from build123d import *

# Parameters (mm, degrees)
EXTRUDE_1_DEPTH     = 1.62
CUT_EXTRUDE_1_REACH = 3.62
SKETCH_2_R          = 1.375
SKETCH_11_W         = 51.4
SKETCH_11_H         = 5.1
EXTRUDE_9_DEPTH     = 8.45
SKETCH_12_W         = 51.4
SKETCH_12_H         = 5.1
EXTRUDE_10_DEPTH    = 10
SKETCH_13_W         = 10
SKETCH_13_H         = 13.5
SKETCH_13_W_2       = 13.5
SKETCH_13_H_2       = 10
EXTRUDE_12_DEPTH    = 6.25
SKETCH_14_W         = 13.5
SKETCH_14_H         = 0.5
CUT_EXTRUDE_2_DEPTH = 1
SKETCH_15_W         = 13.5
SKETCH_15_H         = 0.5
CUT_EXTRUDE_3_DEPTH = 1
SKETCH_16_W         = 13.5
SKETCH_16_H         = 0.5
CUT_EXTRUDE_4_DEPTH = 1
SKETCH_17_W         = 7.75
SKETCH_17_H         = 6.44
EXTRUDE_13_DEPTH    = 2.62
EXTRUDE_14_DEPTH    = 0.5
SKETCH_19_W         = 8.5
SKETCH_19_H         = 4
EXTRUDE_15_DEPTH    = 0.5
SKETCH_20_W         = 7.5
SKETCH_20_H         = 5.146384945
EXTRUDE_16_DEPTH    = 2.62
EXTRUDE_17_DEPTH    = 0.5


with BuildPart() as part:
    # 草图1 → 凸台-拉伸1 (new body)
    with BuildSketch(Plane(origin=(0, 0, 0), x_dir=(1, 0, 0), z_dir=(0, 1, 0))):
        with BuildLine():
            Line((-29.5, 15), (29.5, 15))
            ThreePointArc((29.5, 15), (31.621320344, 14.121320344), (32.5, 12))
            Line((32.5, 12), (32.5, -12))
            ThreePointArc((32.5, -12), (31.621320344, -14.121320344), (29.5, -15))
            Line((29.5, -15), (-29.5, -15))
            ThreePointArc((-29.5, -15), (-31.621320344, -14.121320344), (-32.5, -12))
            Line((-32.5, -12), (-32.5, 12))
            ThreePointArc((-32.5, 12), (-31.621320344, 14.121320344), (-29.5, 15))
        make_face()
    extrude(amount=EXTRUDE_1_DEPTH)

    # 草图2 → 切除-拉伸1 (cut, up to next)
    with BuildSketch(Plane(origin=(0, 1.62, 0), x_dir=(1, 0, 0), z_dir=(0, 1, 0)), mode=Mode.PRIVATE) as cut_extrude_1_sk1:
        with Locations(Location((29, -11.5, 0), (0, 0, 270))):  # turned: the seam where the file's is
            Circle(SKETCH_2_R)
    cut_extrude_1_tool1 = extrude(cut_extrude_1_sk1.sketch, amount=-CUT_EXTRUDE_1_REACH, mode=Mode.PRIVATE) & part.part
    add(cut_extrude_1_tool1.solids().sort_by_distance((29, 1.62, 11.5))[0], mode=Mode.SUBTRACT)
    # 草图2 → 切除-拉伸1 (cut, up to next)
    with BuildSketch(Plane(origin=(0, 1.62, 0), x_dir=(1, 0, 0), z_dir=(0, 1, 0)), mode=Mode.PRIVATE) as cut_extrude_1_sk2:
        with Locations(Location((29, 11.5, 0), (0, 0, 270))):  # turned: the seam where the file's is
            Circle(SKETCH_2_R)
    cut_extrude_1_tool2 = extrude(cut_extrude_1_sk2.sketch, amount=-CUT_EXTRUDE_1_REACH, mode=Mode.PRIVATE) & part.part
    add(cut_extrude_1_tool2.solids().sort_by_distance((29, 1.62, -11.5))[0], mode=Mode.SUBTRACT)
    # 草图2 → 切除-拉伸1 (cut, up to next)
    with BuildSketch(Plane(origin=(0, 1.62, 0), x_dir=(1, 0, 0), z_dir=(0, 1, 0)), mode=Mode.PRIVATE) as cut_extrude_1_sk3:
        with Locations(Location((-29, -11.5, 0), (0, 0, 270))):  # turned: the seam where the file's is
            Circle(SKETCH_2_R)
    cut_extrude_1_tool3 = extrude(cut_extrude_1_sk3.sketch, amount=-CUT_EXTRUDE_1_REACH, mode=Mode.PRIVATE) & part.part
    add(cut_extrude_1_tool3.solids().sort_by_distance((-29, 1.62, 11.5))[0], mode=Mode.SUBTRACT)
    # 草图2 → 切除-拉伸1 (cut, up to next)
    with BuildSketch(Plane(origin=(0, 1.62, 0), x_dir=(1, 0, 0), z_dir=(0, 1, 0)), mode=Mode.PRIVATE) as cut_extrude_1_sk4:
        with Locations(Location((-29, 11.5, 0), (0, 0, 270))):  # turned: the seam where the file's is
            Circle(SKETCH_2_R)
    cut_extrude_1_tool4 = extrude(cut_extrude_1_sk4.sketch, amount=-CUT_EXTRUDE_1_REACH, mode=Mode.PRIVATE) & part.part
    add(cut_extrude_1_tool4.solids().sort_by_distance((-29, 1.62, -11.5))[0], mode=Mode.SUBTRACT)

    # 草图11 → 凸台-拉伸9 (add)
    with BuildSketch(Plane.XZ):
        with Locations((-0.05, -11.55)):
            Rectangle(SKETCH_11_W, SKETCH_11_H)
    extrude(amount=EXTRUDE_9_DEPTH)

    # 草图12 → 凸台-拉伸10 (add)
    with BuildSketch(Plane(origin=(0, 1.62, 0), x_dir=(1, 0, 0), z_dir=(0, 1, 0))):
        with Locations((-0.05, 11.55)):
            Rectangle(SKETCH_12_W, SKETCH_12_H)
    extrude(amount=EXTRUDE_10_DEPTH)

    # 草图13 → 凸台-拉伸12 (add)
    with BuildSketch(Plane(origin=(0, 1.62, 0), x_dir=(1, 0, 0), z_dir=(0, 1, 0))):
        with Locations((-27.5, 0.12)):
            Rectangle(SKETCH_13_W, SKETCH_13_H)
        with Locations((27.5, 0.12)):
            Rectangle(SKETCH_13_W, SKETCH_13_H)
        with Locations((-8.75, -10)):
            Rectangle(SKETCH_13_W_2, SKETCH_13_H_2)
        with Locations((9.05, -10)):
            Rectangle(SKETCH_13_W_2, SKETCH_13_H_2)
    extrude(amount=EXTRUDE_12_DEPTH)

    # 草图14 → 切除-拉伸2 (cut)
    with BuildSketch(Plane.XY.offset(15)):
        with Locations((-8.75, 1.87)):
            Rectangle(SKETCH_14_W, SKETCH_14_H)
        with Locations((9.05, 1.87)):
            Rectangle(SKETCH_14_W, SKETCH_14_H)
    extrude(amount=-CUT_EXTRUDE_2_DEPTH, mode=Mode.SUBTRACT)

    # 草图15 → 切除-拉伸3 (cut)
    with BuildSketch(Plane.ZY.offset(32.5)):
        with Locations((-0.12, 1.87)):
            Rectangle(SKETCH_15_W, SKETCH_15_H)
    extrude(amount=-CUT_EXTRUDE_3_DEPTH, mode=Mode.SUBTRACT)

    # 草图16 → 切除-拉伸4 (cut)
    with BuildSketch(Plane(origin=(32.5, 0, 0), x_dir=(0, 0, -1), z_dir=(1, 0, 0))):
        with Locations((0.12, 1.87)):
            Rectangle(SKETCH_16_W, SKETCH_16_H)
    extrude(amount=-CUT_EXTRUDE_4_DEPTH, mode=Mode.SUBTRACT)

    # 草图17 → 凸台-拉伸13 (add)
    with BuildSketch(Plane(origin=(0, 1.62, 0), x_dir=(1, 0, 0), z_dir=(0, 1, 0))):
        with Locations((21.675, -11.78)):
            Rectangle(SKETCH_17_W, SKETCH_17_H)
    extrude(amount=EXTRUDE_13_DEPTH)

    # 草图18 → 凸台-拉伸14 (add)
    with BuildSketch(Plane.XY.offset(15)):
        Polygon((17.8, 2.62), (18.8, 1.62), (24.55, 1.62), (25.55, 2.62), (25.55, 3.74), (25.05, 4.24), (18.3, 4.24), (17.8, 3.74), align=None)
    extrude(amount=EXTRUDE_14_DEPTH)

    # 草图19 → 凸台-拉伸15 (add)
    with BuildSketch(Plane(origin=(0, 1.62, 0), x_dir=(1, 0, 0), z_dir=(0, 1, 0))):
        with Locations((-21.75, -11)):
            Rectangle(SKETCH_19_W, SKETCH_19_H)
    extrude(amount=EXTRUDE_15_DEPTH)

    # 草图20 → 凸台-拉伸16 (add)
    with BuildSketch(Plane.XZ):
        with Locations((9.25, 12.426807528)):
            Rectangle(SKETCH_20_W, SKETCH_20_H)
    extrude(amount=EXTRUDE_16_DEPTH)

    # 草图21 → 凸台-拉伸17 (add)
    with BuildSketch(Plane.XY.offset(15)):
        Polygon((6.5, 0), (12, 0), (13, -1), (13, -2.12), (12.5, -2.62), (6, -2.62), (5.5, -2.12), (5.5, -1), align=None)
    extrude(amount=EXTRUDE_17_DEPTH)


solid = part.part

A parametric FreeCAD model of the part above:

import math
import FreeCAD as App
import Part
import Sketcher

V = App.Vector
Q = App.Units.Quantity


def add_polygon(sketch, points):
    """Adds a closed chain of lines whose ends are joined by coincident constraints."""
    first, n = sketch.GeometryCount, len(points)
    for a, b in zip(points, points[1:] + points[:1]):
        sketch.addGeometry(Part.LineSegment(App.Vector(*a, 0), App.Vector(*b, 0)), False)
    for i in range(n):
        sketch.addConstraint(Sketcher.Constraint("Coincident", first + i, 2, first + (i + 1) % n, 1))

doc = App.newDocument("Part")
body = doc.addObject("PartDesign::Body", "Body")

# Sketch on XZ plane
sketch1 = body.newObject("Sketcher::SketchObject", "Sketch")
sketch1.AttachmentSupport = (doc.getObject("XZ_Plane"), [""])
sketch1.MapMode = "FlatFace"
sketch1.addGeometry([
    Part.LineSegment(V(29.5, -15, 0), V(-29.5, -15, 0)),  # 0
    Part.ArcOfCircle(Part.Circle(V(-29.5, -12, 0), V(0, 0, 1), 3), math.radians(180), math.radians(270)),  # 1
    Part.LineSegment(V(-32.5, -12, 0), V(-32.5, 12, 0)),  # 2
    Part.ArcOfCircle(Part.Circle(V(-29.5, 12, 0), V(0, 0, 1), 3), math.radians(90), math.radians(180)),  # 3
    Part.LineSegment(V(-29.5, 15, 0), V(29.5, 15, 0)),  # 4
    Part.ArcOfCircle(Part.Circle(V(29.5, 12, 0), V(0, 0, 1), 3), math.radians(0), math.radians(90)),  # 5
    Part.LineSegment(V(32.5, 12, 0), V(32.5, -12, 0)),  # 6
    Part.ArcOfCircle(Part.Circle(V(29.5, -12, 0), V(0, 0, 1), 3), math.radians(-90), math.radians(0)),  # 7
], False)
sketch1.addConstraint([
    Sketcher.Constraint("Tangent", 0, 2, 1, 2),
    Sketcher.Constraint("Tangent", 1, 1, 2, 1),
    Sketcher.Constraint("Tangent", 2, 2, 3, 2),
    Sketcher.Constraint("Tangent", 3, 1, 4, 1),
    Sketcher.Constraint("Tangent", 4, 2, 5, 2),
    Sketcher.Constraint("Tangent", 5, 1, 6, 1),
    Sketcher.Constraint("Tangent", 6, 2, 7, 2),
    Sketcher.Constraint("Tangent", 7, 1, 0, 1),
    Sketcher.Constraint("Horizontal", 0),
    Sketcher.Constraint("Vertical", 2),
    Sketcher.Constraint("Horizontal", 4),
    Sketcher.Constraint("Vertical", 6),
    Sketcher.Constraint("Equal", 1, 3),
    Sketcher.Constraint("Equal", 3, 5),
    Sketcher.Constraint("Equal", 5, 7),
    Sketcher.Constraint("Symmetric", 1, 3, 5, 3, -1, 1),
    Sketcher.Constraint("Radius", 1, Q("3 mm")),
    Sketcher.Constraint("DistanceX", 0, 2, 0, 1, Q("59 mm")),
    Sketcher.Constraint("DistanceY", 2, 1, 2, 2, Q("24 mm")),
])
pad1 = body.newObject("PartDesign::Pad", "Pad")
pad1.Profile = sketch1
pad1.Length = 1.62
pad1.Reversed = True

# Sketch on XZ plane
sketch2 = body.newObject("Sketcher::SketchObject", "Sketch001")
sketch2.AttachmentSupport = (doc.getObject("XZ_Plane"), [""])
sketch2.MapMode = "FlatFace"
sketch2.AttachmentOffset = App.Placement(V(0, 0, -1.62), App.Rotation())
sketch2.addGeometry(Part.Circle(V(29, 11.5, 0), V(0, 0, 1), 1.4), False)
sketch2.addConstraint([
    Sketcher.Constraint("Diameter", 0, Q("2.75 mm")),
    Sketcher.Constraint("DistanceX", -1, 1, 0, 3, Q("29 mm")),
    Sketcher.Constraint("DistanceY", -1, 1, 0, 3, Q("11.5 mm")),
])
pocket1 = body.newObject("PartDesign::Pocket", "Pocket")
pocket1.Profile = sketch2
pocket1.Type = "UpToFirst"
pocket1.Reversed = True

# Sketch on XZ plane
sketch3 = body.newObject("Sketcher::SketchObject", "Sketch002")
sketch3.AttachmentSupport = (doc.getObject("XZ_Plane"), [""])
sketch3.MapMode = "FlatFace"
sketch3.AttachmentOffset = App.Placement(V(0, 0, -1.62), App.Rotation())
sketch3.addGeometry(Part.Circle(V(29, -11.5, 0), V(0, 0, 1), 1.4), False)
sketch3.addConstraint([
    Sketcher.Constraint("Diameter", 0, Q("2.75 mm")),
    Sketcher.Constraint("DistanceX", -1, 1, 0, 3, Q("29 mm")),
    Sketcher.Constraint("DistanceY", 0, 3, -1, 1, Q("11.5 mm")),
])
pocket2 = body.newObject("PartDesign::Pocket", "Pocket001")
pocket2.Profile = sketch3
pocket2.Type = "UpToFirst"
pocket2.Reversed = True

# Sketch on XZ plane
sketch4 = body.newObject("Sketcher::SketchObject", "Sketch003")
sketch4.AttachmentSupport = (doc.getObject("XZ_Plane"), [""])
sketch4.MapMode = "FlatFace"
sketch4.AttachmentOffset = App.Placement(V(0, 0, -1.62), App.Rotation())
sketch4.addGeometry(Part.Circle(V(-29, 11.5, 0), V(0, 0, 1), 1.4), False)
sketch4.addConstraint([
    Sketcher.Constraint("Diameter", 0, Q("2.75 mm")),
    Sketcher.Constraint("DistanceX", 0, 3, -1, 1, Q("29 mm")),
    Sketcher.Constraint("DistanceY", -1, 1, 0, 3, Q("11.5 mm")),
])
pocket3 = body.newObject("PartDesign::Pocket", "Pocket002")
pocket3.Profile = sketch4
pocket3.Type = "UpToFirst"
pocket3.Reversed = True

# Sketch on XZ plane
sketch5 = body.newObject("Sketcher::SketchObject", "Sketch004")
sketch5.AttachmentSupport = (doc.getObject("XZ_Plane"), [""])
sketch5.MapMode = "FlatFace"
sketch5.AttachmentOffset = App.Placement(V(0, 0, -1.62), App.Rotation())
sketch5.addGeometry(Part.Circle(V(-29, -11.5, 0), V(0, 0, 1), 1.4), False)
sketch5.addConstraint([
    Sketcher.Constraint("Diameter", 0, Q("2.75 mm")),
    Sketcher.Constraint("DistanceX", 0, 3, -1, 1, Q("29 mm")),
    Sketcher.Constraint("DistanceY", 0, 3, -1, 1, Q("11.5 mm")),
])
pocket4 = body.newObject("PartDesign::Pocket", "Pocket003")
pocket4.Profile = sketch5
pocket4.Type = "UpToFirst"
pocket4.Reversed = True

# Sketch on XZ plane
sketch6 = body.newObject("Sketcher::SketchObject", "Sketch005")
sketch6.AttachmentSupport = (doc.getObject("XZ_Plane"), [""])
sketch6.MapMode = "FlatFace"
add_polygon(sketch6, [(-26, -9), (-26, -14), (26, -14), (26, -9)])  # lines 0-3
sketch6.addConstraint([
    Sketcher.Constraint("Vertical", 0),
    Sketcher.Constraint("Horizontal", 1),
    Sketcher.Constraint("Vertical", 2),
    Sketcher.Constraint("Horizontal", 3),
    Sketcher.Constraint("DistanceX", 1, 1, 1, 2, Q("51.4 mm")),
    Sketcher.Constraint("DistanceY", 0, 2, 0, 1, Q("5.1 mm")),
    Sketcher.Constraint("DistanceY", 2, 2, -1, 1, Q("9 mm")),
    Sketcher.Constraint("DistanceX", 0, 2, -1, 1, Q("25.75 mm")),
])
pad2 = body.newObject("PartDesign::Pad", "Pad001")
pad2.Profile = sketch6
pad2.Length = 8.45

# Sketch on XZ plane
sketch7 = body.newObject("Sketcher::SketchObject", "Sketch006")
sketch7.AttachmentSupport = (doc.getObject("XZ_Plane"), [""])
sketch7.MapMode = "FlatFace"
sketch7.AttachmentOffset = App.Placement(V(0, 0, -1.62), App.Rotation())
add_polygon(sketch7, [(-26, -14), (-26, -9), (26, -9), (26, -14)])  # lines 0-3
sketch7.addConstraint([
    Sketcher.Constraint("Vertical", 0),
    Sketcher.Constraint("Horizontal", 1),
    Sketcher.Constraint("Vertical", 2),
    Sketcher.Constraint("Horizontal", 3),
    Sketcher.Constraint("DistanceX", 1, 1, 1, 2, Q("51.4 mm")),
    Sketcher.Constraint("DistanceY", 0, 1, 0, 2, Q("5.1 mm")),
    Sketcher.Constraint("DistanceY", 0, 2, -1, 1, Q("9 mm")),
    Sketcher.Constraint("DistanceX", 0, 2, -1, 1, Q("25.75 mm")),
])
pad3 = body.newObject("PartDesign::Pad", "Pad002")
pad3.Profile = sketch7
pad3.Length = 10
pad3.Reversed = True

# Sketch on XZ plane
sketch8 = body.newObject("Sketcher::SketchObject", "Sketch007")
sketch8.AttachmentSupport = (doc.getObject("XZ_Plane"), [""])
sketch8.MapMode = "FlatFace"
sketch8.AttachmentOffset = App.Placement(V(0, 0, -1.62), App.Rotation())
add_polygon(sketch8, [(-32, -7), (-32, 7), (-22, 7), (-22, -7)])  # lines 0-3
add_polygon(sketch8, [(22, -7), (22, 7), (32, 7), (32, -7)])  # lines 4-7
add_polygon(sketch8, [(-16, 5), (-16, 15), (-2, 15), (-2, 5)])  # lines 8-11
add_polygon(sketch8, [(2, 5), (2, 15), (16, 15), (16, 5)])  # lines 12-15
sketch8.addConstraint([
    Sketcher.Constraint("Vertical", 0),
    Sketcher.Constraint("Horizontal", 1),
    Sketcher.Constraint("Vertical", 2),
    Sketcher.Constraint("Horizontal", 3),
    Sketcher.Constraint("Vertical", 4),
    Sketcher.Constraint("Horizontal", 5),
    Sketcher.Constraint("Vertical", 6),
    Sketcher.Constraint("Horizontal", 7),
    Sketcher.Constraint("Vertical", 8),
    Sketcher.Constraint("Horizontal", 9),
    Sketcher.Constraint("Vertical", 10),
    Sketcher.Constraint("Horizontal", 11),
    Sketcher.Constraint("Vertical", 12),
    Sketcher.Constraint("Horizontal", 13),
    Sketcher.Constraint("Vertical", 14),
    Sketcher.Constraint("Horizontal", 15),
    Sketcher.Constraint("Symmetric", 1, 2, 4, 2, -2),
    Sketcher.Constraint("Symmetric", 3, 2, 6, 2, -2),
    Sketcher.Constraint("Horizontal", 9, 2, 12, 2),
    Sketcher.Constraint("Horizontal", 11, 2, 14, 2),
    Sketcher.Constraint("Equal", 11, 13),
    Sketcher.Constraint("Equal", 15, 0),
    Sketcher.Constraint("Equal", 7, 8),
    Sketcher.Constraint("DistanceX", 1, 1, 1, 2, Q("10 mm")),
    Sketcher.Constraint("DistanceX", 9, 1, 9, 2, Q("13.5 mm")),
    Sketcher.Constraint("DistanceY", -1, 1, 8, 2, Q("15 mm")),
    Sketcher.Constraint("DistanceX", 9, 2, -1, 1, Q("2 mm")),
    Sketcher.Constraint("DistanceX", 1, 2, 4, 2, Q("45 mm")),
    Sketcher.Constraint("DistanceX", -1, 1, 12, 2, Q("2.3 mm")),
    Sketcher.Constraint("DistanceY", -1, 1, 0, 2, Q("6.63 mm")),
])
pad4 = body.newObject("PartDesign::Pad", "Pad003")
pad4.Profile = sketch8
pad4.Length = 6.25
pad4.Reversed = True

# Sketch on XY plane
sketch9 = body.newObject("Sketcher::SketchObject", "Sketch008")
sketch9.AttachmentSupport = (doc.getObject("XY_Plane"), [""])
sketch9.MapMode = "FlatFace"
sketch9.AttachmentOffset = App.Placement(V(0, 0, 15), App.Rotation())
add_polygon(sketch9, [(-15.5, 2.1), (-15.5, 1.6), (-2, 1.6), (-2, 2.1)])  # lines 0-3
add_polygon(sketch9, [(2.3, 2.1), (2.3, 1.6), (15.8, 1.6), (15.8, 2.1)])  # lines 4-7
sketch9.addConstraint([
    Sketcher.Constraint("Vertical", 0),
    Sketcher.Constraint("Horizontal", 1),
    Sketcher.Constraint("Vertical", 2),
    Sketcher.Constraint("Horizontal", 3),
    Sketcher.Constraint("Vertical", 4),
    Sketcher.Constraint("Horizontal", 5),
    Sketcher.Constraint("Vertical", 6),
    Sketcher.Constraint("Horizontal", 7),
    Sketcher.Constraint("Horizontal", 1, 2, 4, 2),
    Sketcher.Constraint("Horizontal", 3, 2, 6, 2),
    Sketcher.Constraint("Equal", 3, 5),
    Sketcher.Constraint("DistanceX", 1, 1, 1, 2, Q("13.5 mm")),
    Sketcher.Constraint("DistanceY", 0, 2, 0, 1, Q("0.5 mm")),
    Sketcher.Constraint("DistanceX", 1, 2, -1, 1, Q("2 mm")),
    Sketcher.Constraint("DistanceX", -1, 1, 4, 2, Q("2.3 mm")),
    Sketcher.Constraint("DistanceY", -1, 1, 0, 2, Q("1.62 mm")),
])
pocket5 = body.newObject("PartDesign::Pocket", "Pocket004")
pocket5.Profile = sketch9
pocket5.Length = 1

# Sketch on YZ plane
sketch10 = body.newObject("Sketcher::SketchObject", "Sketch009")
sketch10.AttachmentSupport = (doc.getObject("YZ_Plane"), [""])
sketch10.MapMode = "FlatFace"
sketch10.AttachmentOffset = App.Placement(V(0, 0, -32.5), App.Rotation())
add_polygon(sketch10, [(2.1, -6.9), (1.6, -6.9), (1.6, 6.6), (2.1, 6.6)])  # lines 0-3
sketch10.addConstraint([
    Sketcher.Constraint("Horizontal", 0),
    Sketcher.Constraint("Vertical", 1),
    Sketcher.Constraint("Horizontal", 2),
    Sketcher.Constraint("Vertical", 3),
    Sketcher.Constraint("DistanceX", 0, 2, 0, 1, Q("0.5 mm")),
    Sketcher.Constraint("DistanceY", 1, 1, 1, 2, Q("13.5 mm")),
    Sketcher.Constraint("DistanceX", -1, 1, 0, 2, Q("1.62 mm")),
    Sketcher.Constraint("DistanceY", 0, 2, -1, 1, Q("6.87 mm")),
])
pocket6 = body.newObject("PartDesign::Pocket", "Pocket005")
pocket6.Profile = sketch10
pocket6.Length = 1
pocket6.Reversed = True

# Sketch on YZ plane
sketch11 = body.newObject("Sketcher::SketchObject", "Sketch010")
sketch11.AttachmentSupport = (doc.getObject("YZ_Plane"), [""])
sketch11.MapMode = "FlatFace"
sketch11.AttachmentOffset = App.Placement(V(0, 0, 32.5), App.Rotation())
add_polygon(sketch11, [(2.1, 6.6), (1.6, 6.6), (1.6, -6.9), (2.1, -6.9)])  # lines 0-3
sketch11.addConstraint([
    Sketcher.Constraint("Horizontal", 0),
    Sketcher.Constraint("Vertical", 1),
    Sketcher.Constraint("Horizontal", 2),
    Sketcher.Constraint("Vertical", 3),
    Sketcher.Constraint("DistanceX", 0, 2, 0, 1, Q("0.5 mm")),
    Sketcher.Constraint("DistanceY", 1, 2, 1, 1, Q("13.5 mm")),
    Sketcher.Constraint("DistanceX", -1, 1, 0, 2, Q("1.62 mm")),
    Sketcher.Constraint("DistanceY", -1, 1, 0, 2, Q("6.63 mm")),
])
pocket7 = body.newObject("PartDesign::Pocket", "Pocket006")
pocket7.Profile = sketch11
pocket7.Length = 1

# Sketch on XZ plane
sketch12 = body.newObject("Sketcher::SketchObject", "Sketch011")
sketch12.AttachmentSupport = (doc.getObject("XZ_Plane"), [""])
sketch12.MapMode = "FlatFace"
sketch12.AttachmentOffset = App.Placement(V(0, 0, -1.62), App.Rotation())
add_polygon(sketch12, [(18, 9), (18, 15), (26, 15), (26, 9)])  # lines 0-3
sketch12.addConstraint([
    Sketcher.Constraint("Vertical", 0),
    Sketcher.Constraint("Horizontal", 1),
    Sketcher.Constraint("Vertical", 2),
    Sketcher.Constraint("Horizontal", 3),
    Sketcher.Constraint("DistanceY", -1, 1, 0, 2, Q("15 mm")),
    Sketcher.Constraint("DistanceX", 1, 1, 1, 2, Q("7.75 mm")),
    Sketcher.Constraint("DistanceY", 0, 1, 0, 2, Q("6.44 mm")),
    Sketcher.Constraint("DistanceX", -1, 1, 0, 2, Q("17.8 mm")),
])
pad5 = body.newObject("PartDesign::Pad", "Pad004")
pad5.Profile = sketch12
pad5.Length = 2.62
pad5.Reversed = True

# Sketch on XY plane
sketch13 = body.newObject("Sketcher::SketchObject", "Sketch012")
sketch13.AttachmentSupport = (doc.getObject("XY_Plane"), [""])
sketch13.MapMode = "FlatFace"
sketch13.AttachmentOffset = App.Placement(V(0, 0, 15), App.Rotation())
add_polygon(sketch13, [(17.8, 2.6), (18.8, 1.6), (24.6, 1.6), (25.6, 2.6), (25.6, 3.7), (25.1, 4.2), (18.3, 4.2), (17.8, 3.7)])  # lines 0-7
sketch13.addConstraint([
    Sketcher.Constraint("Horizontal", 1),
    Sketcher.Constraint("Vertical", 3),
    Sketcher.Constraint("Horizontal", 5),
    Sketcher.Constraint("Vertical", 7),
    Sketcher.Constraint("Perpendicular", 0, 2),
    Sketcher.Constraint("Perpendicular", 2, 4),
    Sketcher.Constraint("Perpendicular", 4, 6),
    Sketcher.Constraint("Horizontal", 3, 2, 6, 2),
    Sketcher.Constraint("Horizontal", 2, 2, 7, 2),
    Sketcher.Constraint("Equal", 0, 2),
    Sketcher.Constraint("DistanceX", 1, 2, 2, 2, Q("1 mm")),
    Sketcher.Constraint("DistanceX", 1, 1, 1, 2, Q("5.75 mm")),
    Sketcher.Constraint("DistanceX", 5, 2, 5, 1, Q("6.75 mm")),
    Sketcher.Constraint("DistanceY", 3, 1, 3, 2, Q("1.12 mm")),
    Sketcher.Constraint("DistanceX", -1, 1, 0, 2, Q("18.8 mm")),
    Sketcher.Constraint("DistanceY", -1, 1, 0, 2, Q("1.62 mm")),
])
pad6 = body.newObject("PartDesign::Pad", "Pad005")
pad6.Profile = sketch13
pad6.Length = 0.5

# Sketch on XZ plane
sketch14 = body.newObject("Sketcher::SketchObject", "Sketch013")
sketch14.AttachmentSupport = (doc.getObject("XZ_Plane"), [""])
sketch14.MapMode = "FlatFace"
sketch14.AttachmentOffset = App.Placement(V(0, 0, -1.62), App.Rotation())
add_polygon(sketch14, [(-26, 9), (-26, 13), (-17.5, 13), (-17.5, 9)])  # lines 0-3
sketch14.addConstraint([
    Sketcher.Constraint("Vertical", 0),
    Sketcher.Constraint("Horizontal", 1),
    Sketcher.Constraint("Vertical", 2),
    Sketcher.Constraint("Horizontal", 3),
    Sketcher.Constraint("DistanceY", 0, 1, 0, 2, Q("4 mm")),
    Sketcher.Constraint("DistanceX", 1, 1, 1, 2, Q("8.5 mm")),
    Sketcher.Constraint("DistanceX", 0, 2, -1, 1, Q("26 mm")),
    Sketcher.Constraint("DistanceY", -1, 1, 0, 2, Q("13 mm")),
])
pad7 = body.newObject("PartDesign::Pad", "Pad006")
pad7.Profile = sketch14
pad7.Length = 0.5
pad7.Reversed = True

# Sketch on XZ plane
sketch15 = body.newObject("Sketcher::SketchObject", "Sketch014")
sketch15.AttachmentSupport = (doc.getObject("XZ_Plane"), [""])
sketch15.MapMode = "FlatFace"
add_polygon(sketch15, [(6, 15), (6, 10), (13, 10), (13, 15)])  # lines 0-3
sketch15.addConstraint([
    Sketcher.Constraint("Vertical", 0),
    Sketcher.Constraint("Horizontal", 1),
    Sketcher.Constraint("Vertical", 2),
    Sketcher.Constraint("Horizontal", 3),
    Sketcher.Constraint("DistanceX", 1, 1, 1, 2, Q("7.5 mm")),
    Sketcher.Constraint("DistanceX", -1, 1, 1, 2, Q("13 mm")),
    Sketcher.Constraint("DistanceY", -1, 1, 2, 2, Q("15 mm")),
    Sketcher.Constraint("DistanceY", 0, 2, 0, 1, Q("5.146385 mm")),
])
pad8 = body.newObject("PartDesign::Pad", "Pad007")
pad8.Profile = sketch15
pad8.Length = 2.62

# Sketch on XY plane
sketch16 = body.newObject("Sketcher::SketchObject", "Sketch015")
sketch16.AttachmentSupport = (doc.getObject("XY_Plane"), [""])
sketch16.MapMode = "FlatFace"
sketch16.AttachmentOffset = App.Placement(V(0, 0, 15), App.Rotation())
add_polygon(sketch16, [(12, 0), (6.5, 0), (5.5, -1), (5.5, -2.1), (6, -2.6), (12.5, -2.6), (13, -2.1), (13, -1)])  # lines 0-7
sketch16.addConstraint([
    Sketcher.Constraint("Horizontal", 0),
    Sketcher.Constraint("Vertical", 2),
    Sketcher.Constraint("Horizontal", 4),
    Sketcher.Constraint("Vertical", 6),
    Sketcher.Constraint("PointOnObject", 0, 2, -1),
    Sketcher.Constraint("Perpendicular", 1, 3),
    Sketcher.Constraint("Perpendicular", 3, 5),
    Sketcher.Constraint("Perpendicular", 5, 7),
    Sketcher.Constraint("Horizontal", 2, 2, 5, 2),
    Sketcher.Constraint("Horizontal", 1, 2, 6, 2),
    Sketcher.Constraint("Equal", 3, 5),
    Sketcher.Constraint("DistanceX", 0, 2, 0, 1, Q("5.5 mm")),
    Sketcher.Constraint("DistanceX", 4, 1, 4, 2, Q("6.5 mm")),
    Sketcher.Constraint("DistanceY", 1, 2, -1, 1, Q("1 mm")),
    Sketcher.Constraint("DistanceX", -1, 1, 3, 2, Q("6 mm")),
    Sketcher.Constraint("DistanceY", 2, 2, 2, 1, Q("1.12 mm")),
])
pad9 = body.newObject("PartDesign::Pad", "Pad008")
pad9.Profile = sketch16
pad9.Length = 0.5

doc.recompute()
